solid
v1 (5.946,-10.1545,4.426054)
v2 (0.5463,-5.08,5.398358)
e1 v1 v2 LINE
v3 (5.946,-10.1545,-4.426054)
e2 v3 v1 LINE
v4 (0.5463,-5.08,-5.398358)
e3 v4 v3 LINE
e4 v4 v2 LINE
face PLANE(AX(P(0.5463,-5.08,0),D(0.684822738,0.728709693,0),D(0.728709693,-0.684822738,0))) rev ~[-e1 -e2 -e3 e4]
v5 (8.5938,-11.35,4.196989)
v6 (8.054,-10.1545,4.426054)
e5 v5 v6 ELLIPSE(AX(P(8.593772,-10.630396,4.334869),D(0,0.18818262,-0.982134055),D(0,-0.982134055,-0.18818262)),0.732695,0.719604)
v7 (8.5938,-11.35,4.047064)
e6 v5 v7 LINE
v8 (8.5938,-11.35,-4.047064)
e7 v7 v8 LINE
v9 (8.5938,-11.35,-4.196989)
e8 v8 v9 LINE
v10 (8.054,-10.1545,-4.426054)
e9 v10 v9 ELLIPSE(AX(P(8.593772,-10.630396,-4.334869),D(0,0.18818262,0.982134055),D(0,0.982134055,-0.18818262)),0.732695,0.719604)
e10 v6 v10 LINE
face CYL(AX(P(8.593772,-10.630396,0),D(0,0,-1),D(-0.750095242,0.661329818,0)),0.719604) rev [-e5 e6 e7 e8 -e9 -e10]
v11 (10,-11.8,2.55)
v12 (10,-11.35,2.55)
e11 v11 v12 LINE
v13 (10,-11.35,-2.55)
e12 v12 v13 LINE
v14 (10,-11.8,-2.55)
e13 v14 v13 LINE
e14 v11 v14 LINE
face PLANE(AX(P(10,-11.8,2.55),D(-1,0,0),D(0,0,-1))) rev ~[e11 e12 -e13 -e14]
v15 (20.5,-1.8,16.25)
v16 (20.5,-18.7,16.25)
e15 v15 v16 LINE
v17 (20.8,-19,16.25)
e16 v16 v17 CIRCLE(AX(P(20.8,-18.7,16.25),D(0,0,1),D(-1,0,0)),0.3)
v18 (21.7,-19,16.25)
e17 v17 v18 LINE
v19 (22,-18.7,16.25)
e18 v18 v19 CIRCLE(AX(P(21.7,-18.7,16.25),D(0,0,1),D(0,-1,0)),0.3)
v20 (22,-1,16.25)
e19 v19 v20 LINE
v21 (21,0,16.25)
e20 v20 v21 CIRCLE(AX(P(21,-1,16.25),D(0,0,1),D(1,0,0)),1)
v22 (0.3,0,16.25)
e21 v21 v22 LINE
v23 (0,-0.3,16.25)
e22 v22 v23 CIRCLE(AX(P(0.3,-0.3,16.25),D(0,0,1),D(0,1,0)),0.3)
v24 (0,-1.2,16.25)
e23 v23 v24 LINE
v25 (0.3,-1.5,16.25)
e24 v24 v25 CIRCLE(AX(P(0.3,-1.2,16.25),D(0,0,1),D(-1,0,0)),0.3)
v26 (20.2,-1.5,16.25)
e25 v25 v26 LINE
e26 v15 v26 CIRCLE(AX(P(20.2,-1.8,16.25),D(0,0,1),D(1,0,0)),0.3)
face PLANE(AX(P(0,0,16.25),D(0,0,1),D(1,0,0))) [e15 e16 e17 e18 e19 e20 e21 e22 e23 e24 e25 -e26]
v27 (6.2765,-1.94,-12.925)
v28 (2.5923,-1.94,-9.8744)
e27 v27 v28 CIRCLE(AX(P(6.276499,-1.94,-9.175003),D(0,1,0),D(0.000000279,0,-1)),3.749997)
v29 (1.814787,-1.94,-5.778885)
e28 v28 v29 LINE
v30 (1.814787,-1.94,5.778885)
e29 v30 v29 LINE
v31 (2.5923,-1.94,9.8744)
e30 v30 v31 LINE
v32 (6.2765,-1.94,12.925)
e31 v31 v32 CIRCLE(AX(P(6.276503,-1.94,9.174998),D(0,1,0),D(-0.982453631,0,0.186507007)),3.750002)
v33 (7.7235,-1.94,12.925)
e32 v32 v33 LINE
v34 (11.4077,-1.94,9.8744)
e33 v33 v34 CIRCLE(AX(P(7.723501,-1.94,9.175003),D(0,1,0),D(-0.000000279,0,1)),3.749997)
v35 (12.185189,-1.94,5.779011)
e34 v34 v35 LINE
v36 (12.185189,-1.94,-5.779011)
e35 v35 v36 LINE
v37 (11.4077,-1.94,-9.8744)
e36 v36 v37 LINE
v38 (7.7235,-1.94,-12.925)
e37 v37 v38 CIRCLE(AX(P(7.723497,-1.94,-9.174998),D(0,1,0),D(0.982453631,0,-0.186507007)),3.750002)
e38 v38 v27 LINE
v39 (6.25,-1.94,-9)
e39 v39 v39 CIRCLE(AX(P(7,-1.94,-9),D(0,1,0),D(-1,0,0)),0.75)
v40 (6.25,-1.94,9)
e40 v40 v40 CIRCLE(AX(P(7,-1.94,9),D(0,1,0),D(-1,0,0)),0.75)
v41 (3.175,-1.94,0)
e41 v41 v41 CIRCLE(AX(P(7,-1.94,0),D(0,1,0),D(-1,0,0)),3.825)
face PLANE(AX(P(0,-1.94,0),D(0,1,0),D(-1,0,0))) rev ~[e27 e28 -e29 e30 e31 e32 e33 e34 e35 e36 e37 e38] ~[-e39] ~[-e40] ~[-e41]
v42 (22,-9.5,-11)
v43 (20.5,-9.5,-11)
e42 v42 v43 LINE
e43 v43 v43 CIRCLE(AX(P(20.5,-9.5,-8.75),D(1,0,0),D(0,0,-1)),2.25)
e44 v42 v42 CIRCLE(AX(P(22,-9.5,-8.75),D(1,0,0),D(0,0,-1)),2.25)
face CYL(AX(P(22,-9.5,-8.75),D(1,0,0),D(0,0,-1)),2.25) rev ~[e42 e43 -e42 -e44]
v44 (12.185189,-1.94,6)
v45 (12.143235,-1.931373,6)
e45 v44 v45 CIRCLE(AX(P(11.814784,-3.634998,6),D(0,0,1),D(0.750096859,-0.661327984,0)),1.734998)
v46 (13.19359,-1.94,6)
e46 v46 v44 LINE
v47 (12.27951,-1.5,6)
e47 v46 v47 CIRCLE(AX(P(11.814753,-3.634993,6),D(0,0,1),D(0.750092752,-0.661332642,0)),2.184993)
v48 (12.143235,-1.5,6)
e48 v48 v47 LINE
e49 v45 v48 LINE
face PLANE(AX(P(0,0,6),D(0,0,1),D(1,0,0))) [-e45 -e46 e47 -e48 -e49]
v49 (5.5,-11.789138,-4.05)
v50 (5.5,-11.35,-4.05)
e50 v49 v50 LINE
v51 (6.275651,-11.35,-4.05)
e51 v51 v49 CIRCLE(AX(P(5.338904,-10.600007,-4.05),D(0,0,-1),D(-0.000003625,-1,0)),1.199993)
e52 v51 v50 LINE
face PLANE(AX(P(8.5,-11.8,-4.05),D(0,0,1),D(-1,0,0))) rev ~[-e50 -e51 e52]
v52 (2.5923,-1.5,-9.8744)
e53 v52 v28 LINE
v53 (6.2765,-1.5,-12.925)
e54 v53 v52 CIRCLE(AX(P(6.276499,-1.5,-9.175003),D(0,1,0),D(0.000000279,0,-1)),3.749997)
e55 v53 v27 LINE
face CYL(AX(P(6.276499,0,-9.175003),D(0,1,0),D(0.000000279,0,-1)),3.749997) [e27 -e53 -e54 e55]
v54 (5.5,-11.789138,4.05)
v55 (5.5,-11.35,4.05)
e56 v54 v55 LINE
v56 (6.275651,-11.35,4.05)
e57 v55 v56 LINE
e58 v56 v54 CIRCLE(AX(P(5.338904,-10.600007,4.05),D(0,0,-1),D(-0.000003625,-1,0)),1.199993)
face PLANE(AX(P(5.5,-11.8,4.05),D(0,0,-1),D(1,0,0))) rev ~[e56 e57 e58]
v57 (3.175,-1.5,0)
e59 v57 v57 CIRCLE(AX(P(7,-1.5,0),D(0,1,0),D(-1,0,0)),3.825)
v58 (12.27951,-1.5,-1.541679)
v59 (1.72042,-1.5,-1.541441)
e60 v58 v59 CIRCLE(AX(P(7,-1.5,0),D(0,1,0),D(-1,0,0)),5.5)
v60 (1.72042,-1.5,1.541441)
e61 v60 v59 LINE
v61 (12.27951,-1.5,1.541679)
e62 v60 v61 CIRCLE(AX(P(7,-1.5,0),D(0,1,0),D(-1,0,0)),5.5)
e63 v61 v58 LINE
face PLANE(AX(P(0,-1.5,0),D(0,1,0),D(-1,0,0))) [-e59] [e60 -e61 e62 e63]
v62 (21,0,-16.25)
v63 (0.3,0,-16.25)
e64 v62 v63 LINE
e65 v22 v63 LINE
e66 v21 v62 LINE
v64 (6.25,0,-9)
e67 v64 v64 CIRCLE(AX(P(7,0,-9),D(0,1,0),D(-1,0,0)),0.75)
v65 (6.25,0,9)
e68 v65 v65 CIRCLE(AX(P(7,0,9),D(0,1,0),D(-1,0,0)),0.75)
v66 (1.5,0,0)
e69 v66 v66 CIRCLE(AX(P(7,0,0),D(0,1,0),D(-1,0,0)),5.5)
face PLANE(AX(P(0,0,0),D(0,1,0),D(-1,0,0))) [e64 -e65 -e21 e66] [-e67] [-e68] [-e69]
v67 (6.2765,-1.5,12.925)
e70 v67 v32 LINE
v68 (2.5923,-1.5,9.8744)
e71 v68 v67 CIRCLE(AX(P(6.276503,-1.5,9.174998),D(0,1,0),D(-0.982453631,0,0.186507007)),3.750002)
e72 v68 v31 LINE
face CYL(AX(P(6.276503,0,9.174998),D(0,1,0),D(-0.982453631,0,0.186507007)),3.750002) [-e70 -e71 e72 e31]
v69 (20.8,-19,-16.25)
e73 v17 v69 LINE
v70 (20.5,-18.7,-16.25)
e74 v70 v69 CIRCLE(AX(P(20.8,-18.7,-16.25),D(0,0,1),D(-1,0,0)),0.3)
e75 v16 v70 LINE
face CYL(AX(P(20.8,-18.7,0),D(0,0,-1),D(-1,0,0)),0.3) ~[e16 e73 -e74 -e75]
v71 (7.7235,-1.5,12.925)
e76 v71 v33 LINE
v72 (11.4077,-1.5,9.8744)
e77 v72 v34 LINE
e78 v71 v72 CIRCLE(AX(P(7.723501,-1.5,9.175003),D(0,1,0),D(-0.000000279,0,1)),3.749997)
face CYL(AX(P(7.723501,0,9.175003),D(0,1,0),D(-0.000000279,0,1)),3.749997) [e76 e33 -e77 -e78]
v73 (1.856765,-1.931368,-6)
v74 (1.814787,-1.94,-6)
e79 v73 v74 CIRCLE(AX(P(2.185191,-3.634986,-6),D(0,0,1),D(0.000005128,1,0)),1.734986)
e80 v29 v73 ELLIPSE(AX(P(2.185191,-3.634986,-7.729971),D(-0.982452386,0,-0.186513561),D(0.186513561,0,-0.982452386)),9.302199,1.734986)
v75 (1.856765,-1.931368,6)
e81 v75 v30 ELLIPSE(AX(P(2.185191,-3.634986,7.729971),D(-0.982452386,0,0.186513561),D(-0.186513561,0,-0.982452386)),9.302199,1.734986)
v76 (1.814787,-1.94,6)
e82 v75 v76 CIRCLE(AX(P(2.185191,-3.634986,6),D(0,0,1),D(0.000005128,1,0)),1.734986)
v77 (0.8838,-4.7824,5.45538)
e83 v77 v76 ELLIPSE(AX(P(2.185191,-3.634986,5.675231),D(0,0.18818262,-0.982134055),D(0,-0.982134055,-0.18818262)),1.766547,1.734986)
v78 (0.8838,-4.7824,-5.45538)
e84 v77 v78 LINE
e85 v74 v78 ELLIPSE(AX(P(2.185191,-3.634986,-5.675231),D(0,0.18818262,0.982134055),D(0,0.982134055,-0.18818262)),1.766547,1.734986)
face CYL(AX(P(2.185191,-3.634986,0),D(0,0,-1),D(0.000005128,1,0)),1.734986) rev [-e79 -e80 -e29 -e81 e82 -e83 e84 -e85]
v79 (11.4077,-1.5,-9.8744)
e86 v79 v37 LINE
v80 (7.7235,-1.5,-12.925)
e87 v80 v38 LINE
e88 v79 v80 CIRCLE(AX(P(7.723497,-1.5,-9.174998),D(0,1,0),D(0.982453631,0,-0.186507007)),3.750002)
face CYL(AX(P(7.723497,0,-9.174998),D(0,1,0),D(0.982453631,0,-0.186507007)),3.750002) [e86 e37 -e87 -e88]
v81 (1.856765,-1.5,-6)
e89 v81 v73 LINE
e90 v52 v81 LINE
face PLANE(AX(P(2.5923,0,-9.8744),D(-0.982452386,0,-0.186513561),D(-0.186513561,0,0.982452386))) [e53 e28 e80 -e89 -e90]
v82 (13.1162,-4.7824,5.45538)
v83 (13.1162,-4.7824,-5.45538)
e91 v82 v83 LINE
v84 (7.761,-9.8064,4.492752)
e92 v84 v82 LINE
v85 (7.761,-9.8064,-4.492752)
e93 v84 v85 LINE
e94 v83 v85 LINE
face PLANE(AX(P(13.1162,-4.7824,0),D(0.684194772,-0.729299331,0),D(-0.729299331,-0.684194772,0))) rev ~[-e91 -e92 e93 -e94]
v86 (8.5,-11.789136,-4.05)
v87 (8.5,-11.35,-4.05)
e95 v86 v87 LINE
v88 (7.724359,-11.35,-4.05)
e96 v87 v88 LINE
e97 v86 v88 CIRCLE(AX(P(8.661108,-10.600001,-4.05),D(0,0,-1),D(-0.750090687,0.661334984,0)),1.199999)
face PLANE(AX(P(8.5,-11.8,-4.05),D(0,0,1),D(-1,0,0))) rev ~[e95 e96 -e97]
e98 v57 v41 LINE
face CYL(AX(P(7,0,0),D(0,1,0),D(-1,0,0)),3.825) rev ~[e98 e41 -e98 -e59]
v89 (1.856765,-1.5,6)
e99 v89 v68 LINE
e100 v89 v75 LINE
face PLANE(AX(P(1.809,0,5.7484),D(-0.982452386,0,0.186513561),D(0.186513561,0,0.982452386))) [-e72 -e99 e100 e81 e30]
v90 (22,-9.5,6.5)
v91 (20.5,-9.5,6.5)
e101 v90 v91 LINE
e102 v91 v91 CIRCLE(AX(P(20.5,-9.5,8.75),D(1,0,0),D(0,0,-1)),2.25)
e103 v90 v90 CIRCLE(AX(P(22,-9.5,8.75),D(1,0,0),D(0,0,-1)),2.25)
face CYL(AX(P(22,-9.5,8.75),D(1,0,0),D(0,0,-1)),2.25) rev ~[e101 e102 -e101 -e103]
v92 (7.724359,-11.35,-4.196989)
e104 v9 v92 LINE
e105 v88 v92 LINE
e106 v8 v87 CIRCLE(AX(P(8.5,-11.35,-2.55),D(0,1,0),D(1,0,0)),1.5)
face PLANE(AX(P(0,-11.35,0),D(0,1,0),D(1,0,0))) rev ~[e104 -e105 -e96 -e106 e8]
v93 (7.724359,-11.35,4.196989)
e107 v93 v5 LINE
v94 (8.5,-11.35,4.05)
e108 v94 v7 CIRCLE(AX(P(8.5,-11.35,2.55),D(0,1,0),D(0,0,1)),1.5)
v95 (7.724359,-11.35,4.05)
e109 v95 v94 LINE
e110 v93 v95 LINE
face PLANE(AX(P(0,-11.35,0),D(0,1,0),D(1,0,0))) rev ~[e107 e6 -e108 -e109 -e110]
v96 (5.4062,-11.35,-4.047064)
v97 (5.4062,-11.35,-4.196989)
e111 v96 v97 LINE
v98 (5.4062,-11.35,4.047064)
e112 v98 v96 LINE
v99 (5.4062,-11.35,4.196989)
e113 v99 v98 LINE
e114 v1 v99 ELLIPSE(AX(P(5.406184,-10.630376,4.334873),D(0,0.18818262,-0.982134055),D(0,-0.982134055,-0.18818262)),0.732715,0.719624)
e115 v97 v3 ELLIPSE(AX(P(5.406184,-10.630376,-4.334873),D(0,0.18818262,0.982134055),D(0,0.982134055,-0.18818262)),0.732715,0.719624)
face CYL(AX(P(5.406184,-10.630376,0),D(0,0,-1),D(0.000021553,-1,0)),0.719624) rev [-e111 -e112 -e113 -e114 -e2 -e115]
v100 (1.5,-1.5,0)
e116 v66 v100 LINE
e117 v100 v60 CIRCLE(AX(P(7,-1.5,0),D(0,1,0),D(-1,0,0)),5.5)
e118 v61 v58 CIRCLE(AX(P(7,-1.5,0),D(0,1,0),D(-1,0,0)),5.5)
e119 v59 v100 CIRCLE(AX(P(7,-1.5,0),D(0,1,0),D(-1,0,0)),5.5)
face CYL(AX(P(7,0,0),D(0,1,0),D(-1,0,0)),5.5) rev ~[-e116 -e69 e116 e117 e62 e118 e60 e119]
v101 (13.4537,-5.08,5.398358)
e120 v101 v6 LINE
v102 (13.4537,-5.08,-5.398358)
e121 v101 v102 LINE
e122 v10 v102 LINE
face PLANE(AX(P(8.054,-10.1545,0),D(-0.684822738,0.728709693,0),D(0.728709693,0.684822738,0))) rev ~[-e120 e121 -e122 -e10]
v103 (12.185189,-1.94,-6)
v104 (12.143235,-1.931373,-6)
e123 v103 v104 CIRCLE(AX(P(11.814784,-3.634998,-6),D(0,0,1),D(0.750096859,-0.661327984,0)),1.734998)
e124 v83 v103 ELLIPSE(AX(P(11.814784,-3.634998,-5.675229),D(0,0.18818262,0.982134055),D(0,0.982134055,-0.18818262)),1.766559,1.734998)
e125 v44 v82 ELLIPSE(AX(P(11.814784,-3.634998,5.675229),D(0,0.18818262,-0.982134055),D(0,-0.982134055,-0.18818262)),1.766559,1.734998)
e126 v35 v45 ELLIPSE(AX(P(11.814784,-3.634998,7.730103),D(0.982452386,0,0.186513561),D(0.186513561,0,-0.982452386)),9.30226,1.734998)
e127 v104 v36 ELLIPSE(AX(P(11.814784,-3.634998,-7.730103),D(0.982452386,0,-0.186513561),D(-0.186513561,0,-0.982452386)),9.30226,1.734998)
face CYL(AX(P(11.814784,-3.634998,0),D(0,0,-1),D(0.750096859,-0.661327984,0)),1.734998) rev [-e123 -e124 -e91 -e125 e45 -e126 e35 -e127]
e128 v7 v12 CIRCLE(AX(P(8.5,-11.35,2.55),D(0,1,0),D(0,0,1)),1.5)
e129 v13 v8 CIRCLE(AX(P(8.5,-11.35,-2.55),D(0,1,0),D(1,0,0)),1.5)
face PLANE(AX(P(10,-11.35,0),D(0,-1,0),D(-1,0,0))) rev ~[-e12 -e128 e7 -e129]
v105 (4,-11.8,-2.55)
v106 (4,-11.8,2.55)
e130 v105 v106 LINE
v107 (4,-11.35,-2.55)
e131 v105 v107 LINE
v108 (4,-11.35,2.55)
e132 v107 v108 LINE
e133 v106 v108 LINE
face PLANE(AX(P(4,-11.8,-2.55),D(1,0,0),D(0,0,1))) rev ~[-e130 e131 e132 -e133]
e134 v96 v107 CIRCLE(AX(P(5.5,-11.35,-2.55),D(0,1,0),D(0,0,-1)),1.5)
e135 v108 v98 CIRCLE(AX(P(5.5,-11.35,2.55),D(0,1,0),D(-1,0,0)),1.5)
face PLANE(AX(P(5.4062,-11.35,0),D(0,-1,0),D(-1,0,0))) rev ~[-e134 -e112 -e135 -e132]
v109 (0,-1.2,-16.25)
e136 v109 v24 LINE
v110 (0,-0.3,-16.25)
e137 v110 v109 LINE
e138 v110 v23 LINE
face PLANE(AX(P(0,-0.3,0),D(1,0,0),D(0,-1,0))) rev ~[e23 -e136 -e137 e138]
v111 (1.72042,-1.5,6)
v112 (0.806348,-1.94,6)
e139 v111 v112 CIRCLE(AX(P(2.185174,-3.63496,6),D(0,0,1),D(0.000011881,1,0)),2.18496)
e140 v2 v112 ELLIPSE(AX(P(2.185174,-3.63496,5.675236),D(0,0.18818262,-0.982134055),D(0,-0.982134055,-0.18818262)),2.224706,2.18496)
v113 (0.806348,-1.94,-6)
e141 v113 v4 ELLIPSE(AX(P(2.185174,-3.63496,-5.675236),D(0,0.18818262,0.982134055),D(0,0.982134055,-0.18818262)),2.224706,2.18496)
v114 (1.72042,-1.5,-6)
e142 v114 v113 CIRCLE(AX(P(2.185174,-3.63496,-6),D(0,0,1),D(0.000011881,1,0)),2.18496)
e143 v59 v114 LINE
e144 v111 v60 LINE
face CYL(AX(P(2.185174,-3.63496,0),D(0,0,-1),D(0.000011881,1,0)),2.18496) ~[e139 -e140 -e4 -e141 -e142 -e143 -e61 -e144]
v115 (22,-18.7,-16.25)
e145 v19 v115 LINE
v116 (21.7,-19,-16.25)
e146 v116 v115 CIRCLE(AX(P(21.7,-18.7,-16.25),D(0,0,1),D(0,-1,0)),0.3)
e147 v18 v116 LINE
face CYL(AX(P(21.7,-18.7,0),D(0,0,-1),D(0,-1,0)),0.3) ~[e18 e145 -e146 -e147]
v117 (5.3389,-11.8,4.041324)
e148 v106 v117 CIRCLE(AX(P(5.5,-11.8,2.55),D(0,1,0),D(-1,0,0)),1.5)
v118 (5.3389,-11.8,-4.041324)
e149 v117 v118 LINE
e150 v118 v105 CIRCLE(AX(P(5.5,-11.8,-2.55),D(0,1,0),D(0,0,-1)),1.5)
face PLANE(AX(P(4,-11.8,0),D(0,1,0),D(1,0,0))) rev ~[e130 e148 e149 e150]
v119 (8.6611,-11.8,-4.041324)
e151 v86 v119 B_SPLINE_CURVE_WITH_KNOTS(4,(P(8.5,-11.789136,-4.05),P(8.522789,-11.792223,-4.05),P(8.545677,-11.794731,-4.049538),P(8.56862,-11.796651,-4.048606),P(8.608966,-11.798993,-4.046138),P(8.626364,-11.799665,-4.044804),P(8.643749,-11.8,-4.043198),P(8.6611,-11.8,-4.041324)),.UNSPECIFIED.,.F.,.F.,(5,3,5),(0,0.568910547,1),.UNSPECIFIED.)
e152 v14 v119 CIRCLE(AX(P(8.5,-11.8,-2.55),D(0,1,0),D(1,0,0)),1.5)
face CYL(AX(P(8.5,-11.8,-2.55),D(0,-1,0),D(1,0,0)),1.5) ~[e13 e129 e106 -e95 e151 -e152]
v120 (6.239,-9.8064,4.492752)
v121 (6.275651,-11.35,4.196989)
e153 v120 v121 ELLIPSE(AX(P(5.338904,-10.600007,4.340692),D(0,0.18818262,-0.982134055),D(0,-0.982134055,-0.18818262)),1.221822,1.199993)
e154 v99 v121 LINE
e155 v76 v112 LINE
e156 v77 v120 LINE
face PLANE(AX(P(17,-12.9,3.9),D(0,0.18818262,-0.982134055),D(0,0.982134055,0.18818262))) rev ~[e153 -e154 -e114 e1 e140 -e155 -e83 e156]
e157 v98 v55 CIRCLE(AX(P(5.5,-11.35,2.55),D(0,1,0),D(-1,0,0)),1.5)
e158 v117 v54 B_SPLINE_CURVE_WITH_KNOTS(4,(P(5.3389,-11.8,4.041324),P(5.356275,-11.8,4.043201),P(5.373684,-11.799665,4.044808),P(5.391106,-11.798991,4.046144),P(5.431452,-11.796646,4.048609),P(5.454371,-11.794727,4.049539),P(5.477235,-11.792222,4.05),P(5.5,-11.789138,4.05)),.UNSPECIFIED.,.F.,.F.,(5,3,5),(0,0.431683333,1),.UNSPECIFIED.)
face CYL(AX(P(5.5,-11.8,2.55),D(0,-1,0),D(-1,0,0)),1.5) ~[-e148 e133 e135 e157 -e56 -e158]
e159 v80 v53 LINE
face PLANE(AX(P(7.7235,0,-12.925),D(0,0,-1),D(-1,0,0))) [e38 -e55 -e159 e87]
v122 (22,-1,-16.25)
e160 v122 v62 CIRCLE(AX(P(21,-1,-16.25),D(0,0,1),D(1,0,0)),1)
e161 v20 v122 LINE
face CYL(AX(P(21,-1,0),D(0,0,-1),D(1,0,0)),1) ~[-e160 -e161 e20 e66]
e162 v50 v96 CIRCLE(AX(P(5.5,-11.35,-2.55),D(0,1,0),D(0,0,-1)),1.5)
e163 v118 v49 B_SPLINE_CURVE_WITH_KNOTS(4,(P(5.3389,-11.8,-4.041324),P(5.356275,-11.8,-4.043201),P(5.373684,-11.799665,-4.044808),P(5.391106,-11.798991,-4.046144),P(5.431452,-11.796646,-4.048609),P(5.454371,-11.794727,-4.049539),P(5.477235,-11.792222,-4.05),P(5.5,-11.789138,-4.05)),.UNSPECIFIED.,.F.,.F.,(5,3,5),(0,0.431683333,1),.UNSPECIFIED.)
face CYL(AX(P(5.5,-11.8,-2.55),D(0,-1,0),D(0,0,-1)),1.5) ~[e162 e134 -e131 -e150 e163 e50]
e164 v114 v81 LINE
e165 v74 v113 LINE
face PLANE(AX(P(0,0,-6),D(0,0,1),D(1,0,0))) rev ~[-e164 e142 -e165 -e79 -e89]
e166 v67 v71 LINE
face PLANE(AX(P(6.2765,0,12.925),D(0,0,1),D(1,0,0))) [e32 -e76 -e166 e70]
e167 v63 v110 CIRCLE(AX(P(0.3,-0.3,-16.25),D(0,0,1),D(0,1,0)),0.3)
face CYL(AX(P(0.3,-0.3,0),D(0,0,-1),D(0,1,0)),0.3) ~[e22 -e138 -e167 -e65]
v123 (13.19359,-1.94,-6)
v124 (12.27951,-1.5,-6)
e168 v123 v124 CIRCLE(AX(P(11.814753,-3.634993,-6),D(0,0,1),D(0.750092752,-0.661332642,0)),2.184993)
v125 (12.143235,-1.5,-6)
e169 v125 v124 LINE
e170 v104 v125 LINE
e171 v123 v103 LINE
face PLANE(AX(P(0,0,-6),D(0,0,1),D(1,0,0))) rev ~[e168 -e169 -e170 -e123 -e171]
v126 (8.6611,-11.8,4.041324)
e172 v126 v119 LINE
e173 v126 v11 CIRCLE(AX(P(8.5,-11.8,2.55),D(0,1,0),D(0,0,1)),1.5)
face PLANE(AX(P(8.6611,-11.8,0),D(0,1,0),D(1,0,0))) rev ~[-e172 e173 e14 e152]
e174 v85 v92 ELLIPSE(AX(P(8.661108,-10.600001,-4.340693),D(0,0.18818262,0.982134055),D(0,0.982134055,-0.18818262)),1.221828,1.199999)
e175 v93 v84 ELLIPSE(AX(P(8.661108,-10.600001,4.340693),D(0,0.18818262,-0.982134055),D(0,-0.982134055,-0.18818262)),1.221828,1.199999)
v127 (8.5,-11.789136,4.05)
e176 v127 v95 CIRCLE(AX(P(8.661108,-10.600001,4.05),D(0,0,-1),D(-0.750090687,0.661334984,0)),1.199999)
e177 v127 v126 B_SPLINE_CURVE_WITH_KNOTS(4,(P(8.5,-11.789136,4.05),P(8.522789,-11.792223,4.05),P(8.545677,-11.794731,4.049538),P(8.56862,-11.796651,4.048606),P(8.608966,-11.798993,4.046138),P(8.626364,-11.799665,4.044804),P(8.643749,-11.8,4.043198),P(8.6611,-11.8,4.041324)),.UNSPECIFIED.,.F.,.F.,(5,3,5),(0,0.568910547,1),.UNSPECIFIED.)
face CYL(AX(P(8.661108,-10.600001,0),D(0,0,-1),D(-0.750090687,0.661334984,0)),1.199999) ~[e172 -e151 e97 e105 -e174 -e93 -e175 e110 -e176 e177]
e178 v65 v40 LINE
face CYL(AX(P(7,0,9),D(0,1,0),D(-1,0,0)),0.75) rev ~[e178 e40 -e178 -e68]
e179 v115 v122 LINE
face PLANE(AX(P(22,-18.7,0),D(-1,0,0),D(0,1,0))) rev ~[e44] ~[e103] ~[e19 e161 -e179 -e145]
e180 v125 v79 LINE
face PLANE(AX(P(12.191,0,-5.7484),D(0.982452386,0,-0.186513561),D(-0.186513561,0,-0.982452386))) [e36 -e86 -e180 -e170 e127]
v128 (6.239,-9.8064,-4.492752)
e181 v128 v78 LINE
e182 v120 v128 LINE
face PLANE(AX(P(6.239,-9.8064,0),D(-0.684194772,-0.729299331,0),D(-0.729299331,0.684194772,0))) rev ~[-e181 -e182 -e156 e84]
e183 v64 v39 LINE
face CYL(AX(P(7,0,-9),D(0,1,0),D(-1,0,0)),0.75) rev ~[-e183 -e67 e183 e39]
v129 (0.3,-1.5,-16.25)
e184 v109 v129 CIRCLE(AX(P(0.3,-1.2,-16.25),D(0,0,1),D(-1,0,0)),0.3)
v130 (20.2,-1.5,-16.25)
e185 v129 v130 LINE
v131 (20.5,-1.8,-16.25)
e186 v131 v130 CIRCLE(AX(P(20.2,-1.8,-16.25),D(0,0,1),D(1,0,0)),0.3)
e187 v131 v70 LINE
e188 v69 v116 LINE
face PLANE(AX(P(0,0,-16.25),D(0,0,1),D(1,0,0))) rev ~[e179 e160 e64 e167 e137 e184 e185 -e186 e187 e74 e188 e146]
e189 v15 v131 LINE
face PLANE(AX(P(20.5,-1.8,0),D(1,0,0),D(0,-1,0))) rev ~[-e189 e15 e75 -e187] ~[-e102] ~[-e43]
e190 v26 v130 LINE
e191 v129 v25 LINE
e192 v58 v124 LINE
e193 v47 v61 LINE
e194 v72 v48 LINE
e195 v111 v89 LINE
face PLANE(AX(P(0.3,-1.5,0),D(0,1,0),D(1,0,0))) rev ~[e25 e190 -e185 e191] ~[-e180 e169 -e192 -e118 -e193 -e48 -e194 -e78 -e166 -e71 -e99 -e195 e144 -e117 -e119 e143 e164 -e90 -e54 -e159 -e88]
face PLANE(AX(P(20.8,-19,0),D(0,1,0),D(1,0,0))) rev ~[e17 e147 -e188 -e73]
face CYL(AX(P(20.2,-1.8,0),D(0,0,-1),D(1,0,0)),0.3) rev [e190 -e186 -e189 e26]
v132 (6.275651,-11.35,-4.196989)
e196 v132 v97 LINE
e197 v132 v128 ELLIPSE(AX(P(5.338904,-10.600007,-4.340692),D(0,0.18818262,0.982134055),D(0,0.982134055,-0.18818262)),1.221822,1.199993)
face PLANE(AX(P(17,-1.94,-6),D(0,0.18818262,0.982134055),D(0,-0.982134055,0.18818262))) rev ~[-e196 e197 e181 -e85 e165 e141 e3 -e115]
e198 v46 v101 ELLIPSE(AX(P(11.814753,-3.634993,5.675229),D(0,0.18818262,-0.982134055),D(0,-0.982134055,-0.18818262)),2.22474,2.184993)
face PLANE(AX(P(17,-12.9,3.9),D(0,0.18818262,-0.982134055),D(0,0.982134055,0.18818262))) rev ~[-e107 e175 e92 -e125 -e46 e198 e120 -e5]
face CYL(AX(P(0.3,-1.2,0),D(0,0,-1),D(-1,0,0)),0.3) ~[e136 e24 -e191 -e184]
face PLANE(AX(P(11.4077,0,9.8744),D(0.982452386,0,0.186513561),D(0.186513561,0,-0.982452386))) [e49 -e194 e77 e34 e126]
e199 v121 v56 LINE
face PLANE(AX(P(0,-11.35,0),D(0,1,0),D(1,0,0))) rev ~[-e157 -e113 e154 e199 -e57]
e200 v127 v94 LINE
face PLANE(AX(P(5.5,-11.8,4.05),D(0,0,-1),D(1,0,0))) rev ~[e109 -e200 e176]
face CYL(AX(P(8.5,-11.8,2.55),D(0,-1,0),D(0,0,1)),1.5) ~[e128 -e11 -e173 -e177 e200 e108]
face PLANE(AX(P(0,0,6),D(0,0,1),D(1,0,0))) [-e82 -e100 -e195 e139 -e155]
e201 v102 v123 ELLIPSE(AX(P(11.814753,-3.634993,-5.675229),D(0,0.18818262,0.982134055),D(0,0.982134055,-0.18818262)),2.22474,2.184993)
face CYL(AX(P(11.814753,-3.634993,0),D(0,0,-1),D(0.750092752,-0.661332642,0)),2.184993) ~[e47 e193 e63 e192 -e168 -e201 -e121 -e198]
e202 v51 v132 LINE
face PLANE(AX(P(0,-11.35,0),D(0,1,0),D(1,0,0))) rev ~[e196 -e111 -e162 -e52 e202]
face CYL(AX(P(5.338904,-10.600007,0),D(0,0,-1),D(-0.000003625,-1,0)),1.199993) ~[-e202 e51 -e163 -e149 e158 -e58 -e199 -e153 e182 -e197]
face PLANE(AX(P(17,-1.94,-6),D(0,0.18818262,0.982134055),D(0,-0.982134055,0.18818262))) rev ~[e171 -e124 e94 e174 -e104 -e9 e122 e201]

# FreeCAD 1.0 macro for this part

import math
import FreeCAD as App
import Part
import Sketcher

V = App.Vector
Q = App.Units.Quantity

doc = App.newDocument("Part")
body = doc.addObject("PartDesign::Body", "Body")

# Sketch on XY plane
sketch1 = body.newObject("Sketcher::SketchObject", "Sketch")
sketch1.AttachmentSupport = (doc.getObject("XY_Plane"), [""])
sketch1.MapMode = "FlatFace"
sketch1.addGeometry(Part.ArcOfCircle(Part.Circle(V(0.3, -0.3, 0), V(0, 0, 1), 0.3), math.radians(90), math.radians(180)), False)
sketch1.addGeometry(Part.LineSegment(V(0, -0.3, 0), V(0, -1.2, 0)), False)
sketch1.addGeometry(Part.ArcOfCircle(Part.Circle(V(0.3, -1.2, 0), V(0, 0, 1), 0.3), math.radians(180), math.radians(270)), False)
sketch1.addGeometry(Part.LineSegment(V(0.3, -1.5, 0), V(20.2, -1.5, 0)), False)
sketch1.addGeometry(Part.ArcOfCircle(Part.Circle(V(20.2, -1.8, 0), V(0, 0, 1), 0.3), math.radians(0), math.radians(90)), False)
sketch1.addGeometry(Part.LineSegment(V(20.5, -1.8, 0), V(20.5, -18.7, 0)), False)
sketch1.addGeometry(Part.ArcOfCircle(Part.Circle(V(20.8, -18.7, 0), V(0, 0, 1), 0.3), math.radians(180), math.radians(270)), False)
sketch1.addGeometry(Part.LineSegment(V(20.8, -19, 0), V(21.7, -19, 0)), False)
sketch1.addGeometry(Part.ArcOfCircle(Part.Circle(V(21.7, -18.7, 0), V(0, 0, 1), 0.3), math.radians(-90), math.radians(0)), False)
sketch1.addGeometry(Part.LineSegment(V(22, -18.7, 0), V(22, -1, 0)), False)
sketch1.addGeometry(Part.ArcOfCircle(Part.Circle(V(21, -1, 0), V(0, 0, 1), 1), math.radians(0), math.radians(90)), False)
sketch1.addGeometry(Part.LineSegment(V(21, 0, 0), V(0.3, 0, 0)), False)
sketch1.addConstraint(Sketcher.Constraint("Tangent", 0, 2, 1, 1))
sketch1.addConstraint(Sketcher.Constraint("Tangent", 1, 2, 2, 1))
sketch1.addConstraint(Sketcher.Constraint("Tangent", 2, 2, 3, 1))
sketch1.addConstraint(Sketcher.Constraint("Tangent", 3, 2, 4, 2))
sketch1.addConstraint(Sketcher.Constraint("Tangent", 4, 1, 5, 1))
sketch1.addConstraint(Sketcher.Constraint("Tangent", 5, 2, 6, 1))
sketch1.addConstraint(Sketcher.Constraint("Tangent", 6, 2, 7, 1))
sketch1.addConstraint(Sketcher.Constraint("Tangent", 7, 2, 8, 1))
sketch1.addConstraint(Sketcher.Constraint("Tangent", 8, 2, 9, 1))
sketch1.addConstraint(Sketcher.Constraint("Tangent", 9, 2, 10, 1))
sketch1.addConstraint(Sketcher.Constraint("Tangent", 10, 2, 11, 1))
sketch1.addConstraint(Sketcher.Constraint("Tangent", 11, 2, 0, 1))
sketch1.addConstraint(Sketcher.Constraint("Vertical", 1))
sketch1.addConstraint(Sketcher.Constraint("Horizontal", 3))
sketch1.addConstraint(Sketcher.Constraint("Vertical", 5))
sketch1.addConstraint(Sketcher.Constraint("Horizontal", 7))
sketch1.addConstraint(Sketcher.Constraint("Vertical", 9))
sketch1.addConstraint(Sketcher.Constraint("Horizontal", 11))
sketch1.addConstraint(Sketcher.Constraint("Equal", 0, 2))
sketch1.addConstraint(Sketcher.Constraint("Equal", 2, 4))
sketch1.addConstraint(Sketcher.Constraint("Equal", 4, 6))
sketch1.addConstraint(Sketcher.Constraint("Equal", 6, 8))
sketch1.addConstraint(Sketcher.Constraint("PointOnObject", 0, 2, -2))
sketch1.addConstraint(Sketcher.Constraint("PointOnObject", 10, 2, -1))
sketch1.addConstraint(Sketcher.Constraint("Equal", 7, 1))
sketch1.addConstraint(Sketcher.Constraint("Radius", 10, 1.0))
sketch1.addConstraint(Sketcher.Constraint("Radius", 0, 0.3))
sketch1.addConstraint(Sketcher.Constraint("DistanceX", 3, 1, 3, 2, 19.9))
sketch1.addConstraint(Sketcher.Constraint("DistanceX", 7, 1, 7, 2, 0.9))
sketch1.addConstraint(Sketcher.Constraint("DistanceY", 5, 2, 5, 1, 16.9))
pad1 = body.newObject("PartDesign::Pad", "Pad")
pad1.Profile = sketch1
pad1.Length = 32.5
pad1.Midplane = True

# Sketch on YZ plane
sketch2 = body.newObject("Sketcher::SketchObject", "Sketch001")
sketch2.AttachmentSupport = (doc.getObject("YZ_Plane"), [""])
sketch2.MapMode = "FlatFace"
sketch2.AttachmentOffset = App.Placement(V(0, 0, 22), App.Rotation())
sketch2.addGeometry(Part.Circle(V(-9.5, -8.8, 0), V(0, 0, 1), 2.2), False)
sketch2.addConstraint(Sketcher.Constraint("Diameter", 0, 4.5))
sketch2.addConstraint(Sketcher.Constraint("DistanceX", 0, 3, -1, 1, 9.5))
sketch2.addConstraint(Sketcher.Constraint("DistanceY", 0, 3, -1, 1, 8.75))
pocket1 = body.newObject("PartDesign::Pocket", "Pocket")
pocket1.Profile = sketch2
pocket1.Length = 3
pocket1.Midplane = True

# Sketch on YZ plane
sketch3 = body.newObject("Sketcher::SketchObject", "Sketch002")
sketch3.AttachmentSupport = (doc.getObject("YZ_Plane"), [""])
sketch3.MapMode = "FlatFace"
sketch3.AttachmentOffset = App.Placement(V(0, 0, 22), App.Rotation())
sketch3.addGeometry(Part.Circle(V(-9.5, 8.8, 0), V(0, 0, 1), 2.2), False)
sketch3.addConstraint(Sketcher.Constraint("Diameter", 0, 4.5))
sketch3.addConstraint(Sketcher.Constraint("DistanceX", 0, 3, -1, 1, 9.5))
sketch3.addConstraint(Sketcher.Constraint("DistanceY", -1, 1, 0, 3, 8.75))
pocket2 = body.newObject("PartDesign::Pocket", "Pocket001")
pocket2.Profile = sketch3
pocket2.Length = 3
pocket2.Midplane = True

# Sketch on XY plane
sketch4 = body.newObject("Sketcher::SketchObject", "Sketch003")
sketch4.AttachmentSupport = (doc.getObject("XY_Plane"), [""])
sketch4.MapMode = "FlatFace"
sketch4.addGeometry(Part.LineSegment(V(11.81, -1.45, 0), V(2.19, -1.45, 0)), False)
sketch4.addGeometry(Part.ArcOfCircle(Part.Circle(V(2.19, -3.63, 0), V(0, 0, 1), 2.18), math.radians(90), math.radians(221)), False)
sketch4.addGeometry(Part.LineSegment(V(0.55, -5.08, 0), V(5.95, -10.15, 0)), False)
sketch4.addGeometry(Part.ArcOfCircle(Part.Circle(V(5.41, -10.63, 0), V(0, 0, 1), 0.72), math.radians(-90), math.radians(41)), False)
sketch4.addGeometry(Part.LineSegment(V(5.41, -11.35, 0), V(4, -11.35, 0)), False)
sketch4.addGeometry(Part.LineSegment(V(4, -11.35, 0), V(4, -11.8, 0)), False)
sketch4.addGeometry(Part.LineSegment(V(4, -11.8, 0), V(5.34, -11.8, 0)), False)
sketch4.addGeometry(Part.ArcOfCircle(Part.Circle(V(5.34, -10.6, 0), V(0, 0, 1), 1.2), math.radians(-90), math.radians(41)), False)
sketch4.addGeometry(Part.LineSegment(V(6.24, -9.81, 0), V(0.88, -4.78, 0)), False)
sketch4.addGeometry(Part.ArcOfCircle(Part.Circle(V(2.19, -3.63, 0), V(0, 0, 1), 1.73), math.radians(90), math.radians(221)), False)
sketch4.addGeometry(Part.LineSegment(V(2.19, -1.9, 0), V(11.81, -1.9, 0)), False)
sketch4.addGeometry(Part.ArcOfCircle(Part.Circle(V(11.81, -3.63, 0), V(0, 0, 1), 1.73), math.radians(-41), math.radians(90)), False)
sketch4.addGeometry(Part.LineSegment(V(13.12, -4.78, 0), V(7.76, -9.81, 0)), False)
sketch4.addGeometry(Part.ArcOfCircle(Part.Circle(V(8.66, -10.6, 0), V(0, 0, 1), 1.2), math.radians(139), math.radians(270)), False)
sketch4.addGeometry(Part.LineSegment(V(8.66, -11.8, 0), V(10, -11.8, 0)), False)
sketch4.addGeometry(Part.LineSegment(V(10, -11.8, 0), V(10, -11.35, 0)), False)
sketch4.addGeometry(Part.LineSegment(V(10, -11.35, 0), V(8.59, -11.35, 0)), False)
sketch4.addGeometry(Part.ArcOfCircle(Part.Circle(V(8.59, -10.63, 0), V(0, 0, 1), 0.72), math.radians(139), math.radians(270)), False)
sketch4.addGeometry(Part.LineSegment(V(8.05, -10.15, 0), V(13.45, -5.08, 0)), False)
sketch4.addGeometry(Part.ArcOfCircle(Part.Circle(V(11.81, -3.63, 0), V(0, 0, 1), 2.18), math.radians(-41), math.radians(90)), False)
sketch4.addConstraint(Sketcher.Constraint("Tangent", 0, 2, 1, 1))
sketch4.addConstraint(Sketcher.Constraint("Coincident", 1, 2, 2, 1))
sketch4.addConstraint(Sketcher.Constraint("Coincident", 2, 2, 3, 2))
sketch4.addConstraint(Sketcher.Constraint("Tangent", 3, 1, 4, 1))
sketch4.addConstraint(Sketcher.Constraint("Coincident", 4, 2, 5, 1))
sketch4.addConstraint(Sketcher.Constraint("Coincident", 5, 2, 6, 1))
sketch4.addConstraint(Sketcher.Constraint("Tangent", 6, 2, 7, 1))
sketch4.addConstraint(Sketcher.Constraint("Coincident", 7, 2, 8, 1))
sketch4.addConstraint(Sketcher.Constraint("Coincident", 8, 2, 9, 2))
sketch4.addConstraint(Sketcher.Constraint("Tangent", 9, 1, 10, 1))
sketch4.addConstraint(Sketcher.Constraint("Tangent", 10, 2, 11, 2))
sketch4.addConstraint(Sketcher.Constraint("Coincident", 11, 1, 12, 1))
sketch4.addConstraint(Sketcher.Constraint("Coincident", 12, 2, 13, 1))
sketch4.addConstraint(Sketcher.Constraint("Tangent", 13, 2, 14, 1))
sketch4.addConstraint(Sketcher.Constraint("Coincident", 14, 2, 15, 1))
sketch4.addConstraint(Sketcher.Constraint("Coincident", 15, 2, 16, 1))
sketch4.addConstraint(Sketcher.Constraint("Tangent", 16, 2, 17, 2))
sketch4.addConstraint(Sketcher.Constraint("Coincident", 17, 1, 18, 1))
sketch4.addConstraint(Sketcher.Constraint("Coincident", 18, 2, 19, 1))
sketch4.addConstraint(Sketcher.Constraint("Tangent", 19, 2, 0, 1))
sketch4.addConstraint(Sketcher.Constraint("Horizontal", 0))
sketch4.addConstraint(Sketcher.Constraint("Horizontal", 4))
sketch4.addConstraint(Sketcher.Constraint("Vertical", 5))
sketch4.addConstraint(Sketcher.Constraint("Horizontal", 6))
sketch4.addConstraint(Sketcher.Constraint("Horizontal", 10))
sketch4.addConstraint(Sketcher.Constraint("Horizontal", 14))
sketch4.addConstraint(Sketcher.Constraint("Vertical", 15))
sketch4.addConstraint(Sketcher.Constraint("Horizontal", 16))
sketch4.addConstraint(Sketcher.Constraint("Coincident", 9, 3, 1, 3))
sketch4.addConstraint(Sketcher.Constraint("Coincident", 19, 3, 11, 3))
sketch4.addConstraint(Sketcher.Constraint("Equal", 9, 11))
sketch4.addConstraint(Sketcher.Constraint("Equal", 7, 13))
sketch4.addConstraint(Sketcher.Constraint("Equal", 3, 17))
sketch4.addConstraint(Sketcher.Constraint("Horizontal", 7, 3, 13, 3))
sketch4.addConstraint(Sketcher.Constraint("Horizontal", 3, 3, 17, 3))
sketch4.addConstraint(Sketcher.Constraint("Horizontal", 8, 2, 11, 1))
sketch4.addConstraint(Sketcher.Constraint("Horizontal", 7, 2, 12, 2))
sketch4.addConstraint(Sketcher.Constraint("Horizontal", 2, 2, 17, 1))
sketch4.addConstraint(Sketcher.Constraint("Horizontal", 1, 2, 18, 2))
sketch4.addConstraint(Sketcher.Constraint("Equal", 6, 14))
sketch4.addConstraint(Sketcher.Constraint("Equal", 4, 16))
sketch4.addConstraint(Sketcher.Constraint("Equal", 8, 12))
sketch4.addConstraint(Sketcher.Constraint("Radius", 7, 1.2))
sketch4.addConstraint(Sketcher.Constraint("DistanceX", -1, 1, 4, 2, 4.0))
sketch4.addConstraint(Sketcher.Constraint("DistanceX", -1, 1, 14, 2, 10.0))
sketch4.addConstraint(Sketcher.Constraint("Radius", 1, 2.185))
sketch4.addConstraint(Sketcher.Constraint("Radius", 9, 1.735))
sketch4.addConstraint(Sketcher.Constraint("DistanceY", 5, 2, 5, 1, 0.45))
sketch4.addConstraint(Sketcher.Constraint("DistanceY", 7, 3, -1, 1, 10.6))
sketch4.addConstraint(Sketcher.Constraint("DistanceY", 9, 1, -1, 1, 1.9))
sketch4.addConstraint(Sketcher.Constraint("Radius", 3, 0.7196))
sketch4.addConstraint(Sketcher.Constraint("DistanceX", 7, 3, 7, 2, 0.9))
sketch4.addConstraint(Sketcher.Constraint("Distance", 2, 7.41))
sketch4.addConstraint(Sketcher.Constraint("DistanceX", 6, 1, 6, 2, 1.339))
sketch4.addConstraint(Sketcher.Constraint("DistanceY", 1, 2, -1, 1, 5.08))
sketch4.addConstraint(Sketcher.Constraint("DistanceX", 1, 2, 3, 3, 4.86))
sketch4.addConstraint(Sketcher.Constraint("Distance", 8, 7.343))
sketch4.addConstraint(Sketcher.Constraint("DistanceX", 0, 2, 0, 1, 9.6296))
pad2 = body.newObject("PartDesign::Pad", "Pad001")
pad2.Profile = sketch4
pad2.Length = 12
pad2.Midplane = True

# Sketch on XZ plane
sketch5 = body.newObject("Sketcher::SketchObject", "Sketch004")
sketch5.AttachmentSupport = (doc.getObject("XZ_Plane"), [""])
sketch5.MapMode = "FlatFace"
sketch5.addGeometry(Part.LineSegment(V(1.8, -5.7, 0), V(1.8, 5.7, 0)), False)
sketch5.addGeometry(Part.LineSegment(V(1.8, 5.7, 0), V(2.6, 9.9, 0)), False)
sketch5.addGeometry(Part.ArcOfCircle(Part.Circle(V(6.3, 9.2, 0), V(0, 0, 1), 3.7), math.radians(90), math.radians(169)), False)
sketch5.addGeometry(Part.LineSegment(V(6.3, 12.9, 0), V(7.7, 12.9, 0)), False)
sketch5.addGeometry(Part.ArcOfCircle(Part.Circle(V(7.7, 9.2, 0), V(0, 0, 1), 3.8), math.radians(11), math.radians(90)), False)
sketch5.addGeometry(Part.LineSegment(V(11.4, 9.9, 0), V(12.2, 5.7, 0)), False)
sketch5.addGeometry(Part.LineSegment(V(12.2, 5.7, 0), V(12.2, -5.7, 0)), False)
sketch5.addGeometry(Part.LineSegment(V(12.2, -5.7, 0), V(11.4, -9.9, 0)), False)
sketch5.addGeometry(Part.ArcOfCircle(Part.Circle(V(7.7, -9.2, 0), V(0, 0, 1), 3.7), math.radians(-90), math.radians(-11)), False)
sketch5.addGeometry(Part.LineSegment(V(7.7, -12.9, 0), V(6.3, -12.9, 0)), False)
sketch5.addGeometry(Part.ArcOfCircle(Part.Circle(V(6.3, -9.2, 0), V(0, 0, 1), 3.8), math.radians(-169), math.radians(-90)), False)
sketch5.addGeometry(Part.LineSegment(V(2.6, -9.9, 0), V(1.8, -5.7, 0)), False)
sketch5.addConstraint(Sketcher.Constraint("Coincident", 0, 2, 1, 1))
sketch5.addConstraint(Sketcher.Constraint("Tangent", 1, 2, 2, 2))
sketch5.addConstraint(Sketcher.Constraint("Tangent", 2, 1, 3, 1))
sketch5.addConstraint(Sketcher.Constraint("Tangent", 3, 2, 4, 2))
sketch5.addConstraint(Sketcher.Constraint("Tangent", 4, 1, 5, 1))
sketch5.addConstraint(Sketcher.Constraint("Coincident", 5, 2, 6, 1))
sketch5.addConstraint(Sketcher.Constraint("Coincident", 6, 2, 7, 1))
sketch5.addConstraint(Sketcher.Constraint("Tangent", 7, 2, 8, 2))
sketch5.addConstraint(Sketcher.Constraint("Tangent", 8, 1, 9, 1))
sketch5.addConstraint(Sketcher.Constraint("Tangent", 9, 2, 10, 2))
sketch5.addConstraint(Sketcher.Constraint("Tangent", 10, 1, 11, 1))
sketch5.addConstraint(Sketcher.Constraint("Coincident", 11, 2, 0, 1))
sketch5.addConstraint(Sketcher.Constraint("Vertical", 0))
sketch5.addConstraint(Sketcher.Constraint("Horizontal", 3))
sketch5.addConstraint(Sketcher.Constraint("Vertical", 6))
sketch5.addConstraint(Sketcher.Constraint("Horizontal", 9))
sketch5.addConstraint(Sketcher.Constraint("Equal", 2, 4))
sketch5.addConstraint(Sketcher.Constraint("Equal", 4, 8))
sketch5.addConstraint(Sketcher.Constraint("Equal", 8, 10))
sketch5.addConstraint(Sketcher.Constraint("Symmetric", 4, 3, 8, 3, -1))
sketch5.addConstraint(Sketcher.Constraint("Symmetric", 1, 2, 10, 1, -1))
sketch5.addConstraint(Sketcher.Constraint("Parallel", 1, 7))
sketch5.addConstraint(Sketcher.Constraint("Parallel", 5, 11))
sketch5.addConstraint(Sketcher.Constraint("Horizontal", 0, 2, 5, 2))
sketch5.addConstraint(Sketcher.Constraint("Radius", 2, 3.75))
sketch5.addConstraint(Sketcher.Constraint("Angle", 1, Q("79.2506 deg")))
sketch5.addConstraint(Sketcher.Constraint("DistanceY", 10, 3, 2, 1, 22.1))
sketch5.addConstraint(Sketcher.Constraint("DistanceX", 3, 1, 3, 2, 1.447))
sketch5.addConstraint(Sketcher.Constraint("DistanceY", 0, 1, 0, 2, 11.4968))
sketch5.addConstraint(Sketcher.Constraint("DistanceX", -1, 1, 0, 2, 1.809))
pad3 = body.newObject("PartDesign::Pad", "Pad002")
pad3.Profile = sketch5
pad3.Length = 1.94

# Sketch on XZ plane
sketch6 = body.newObject("Sketcher::SketchObject", "Sketch005")
sketch6.AttachmentSupport = (doc.getObject("XZ_Plane"), [""])
sketch6.MapMode = "FlatFace"
sketch6.addGeometry(Part.Circle(V(7, 0, 0), V(0, 0, 1), 6), False)
sketch6.addConstraint(Sketcher.Constraint("PointOnObject", 0, 3, -1))
sketch6.addConstraint(Sketcher.Constraint("Diameter", 0, 11.0))
sketch6.addConstraint(Sketcher.Constraint("DistanceX", -1, 1, 0, 3, 7.0))
pocket3 = body.newObject("PartDesign::Pocket", "Pocket002")
pocket3.Profile = sketch6
pocket3.Length = 1.5
pocket3.Reversed = True

# Sketch on XZ plane
sketch7 = body.newObject("Sketcher::SketchObject", "Sketch006")
sketch7.AttachmentSupport = (doc.getObject("XZ_Plane"), [""])
sketch7.MapMode = "FlatFace"
sketch7.addGeometry(Part.Circle(V(7, 0, 0), V(0, 0, 1), 3.8), False)
sketch7.addConstraint(Sketcher.Constraint("PointOnObject", 0, 3, -1))
sketch7.addConstraint(Sketcher.Constraint("Diameter", 0, 7.65))
sketch7.addConstraint(Sketcher.Constraint("DistanceX", -1, 1, 0, 3, 7.0))
pocket4 = body.newObject("PartDesign::Pocket", "Pocket003")
pocket4.Profile = sketch7
pocket4.Length = 2.6
pocket4.Reversed = True

# Sketch on YZ plane
sketch8 = body.newObject("Sketcher::SketchObject", "Sketch007")
sketch8.AttachmentSupport = (doc.getObject("YZ_Plane"), [""])
sketch8.MapMode = "FlatFace"
sketch8.AttachmentOffset = App.Placement(V(0, 0, 17), App.Rotation())
sketch8.addGeometry(Part.LineSegment(V(-12.9, 3.9, 0), V(-1.9, 6, 0)), False)
sketch8.addGeometry(Part.LineSegment(V(-1.9, 6, 0), V(-12.9, 6, 0)), False)
sketch8.addGeometry(Part.LineSegment(V(-12.9, 6, 0), V(-12.9, 3.9, 0)), False)
sketch8.addConstraint(Sketcher.Constraint("Coincident", 0, 2, 1, 1))
sketch8.addConstraint(Sketcher.Constraint("Coincident", 1, 2, 2, 1))
sketch8.addConstraint(Sketcher.Constraint("Coincident", 2, 2, 0, 1))
sketch8.addConstraint(Sketcher.Constraint("Horizontal", 1))
sketch8.addConstraint(Sketcher.Constraint("Vertical", 2))
sketch8.addConstraint(Sketcher.Constraint("DistanceY", 2, 2, 2, 1, 2.1))
sketch8.addConstraint(Sketcher.Constraint("DistanceY", -1, 1, 0, 2, 6.0))
sketch8.addConstraint(Sketcher.Constraint("DistanceX", 1, 2, 1, 1, 10.96))
sketch8.addConstraint(Sketcher.Constraint("DistanceX", 1, 2, -1, 1, 12.9))
pocket5 = body.newObject("PartDesign::Pocket", "Pocket004")
pocket5.Profile = sketch8
pocket5.Length = 30

# Sketch on YZ plane
sketch9 = body.newObject("Sketcher::SketchObject", "Sketch008")
sketch9.AttachmentSupport = (doc.getObject("YZ_Plane"), [""])
sketch9.MapMode = "FlatFace"
sketch9.AttachmentOffset = App.Placement(V(0, 0, 17), App.Rotation())
sketch9.addGeometry(Part.LineSegment(V(-1.9, -6, 0), V(-12.9, -3.9, 0)), False)
sketch9.addGeometry(Part.LineSegment(V(-12.9, -3.9, 0), V(-12.9, -6, 0)), False)
sketch9.addGeometry(Part.LineSegment(V(-12.9, -6, 0), V(-1.9, -6, 0)), False)
sketch9.addConstraint(Sketcher.Constraint("Coincident", 0, 2, 1, 1))
sketch9.addConstraint(Sketcher.Constraint("Coincident", 1, 2, 2, 1))
sketch9.addConstraint(Sketcher.Constraint("Coincident", 2, 2, 0, 1))
sketch9.addConstraint(Sketcher.Constraint("Vertical", 1))
sketch9.addConstraint(Sketcher.Constraint("Horizontal", 2))
sketch9.addConstraint(Sketcher.Constraint("DistanceY", 1, 2, 1, 1, 2.1))
sketch9.addConstraint(Sketcher.Constraint("DistanceY", 1, 2, -1, 1, 6.0))
sketch9.addConstraint(Sketcher.Constraint("DistanceX", 2, 1, 2, 2, 10.96))
sketch9.addConstraint(Sketcher.Constraint("DistanceX", 0, 2, -1, 1, 12.9))
pocket6 = body.newObject("PartDesign::Pocket", "Pocket005")
pocket6.Profile = sketch9
pocket6.Length = 30

# Sketch on XZ plane
sketch10 = body.newObject("Sketcher::SketchObject", "Sketch009")
sketch10.AttachmentSupport = (doc.getObject("XZ_Plane"), [""])
sketch10.MapMode = "FlatFace"
sketch10.addGeometry(Part.Circle(V(7, 9, 0), V(0, 0, 1), 0.8), False)
sketch10.addConstraint(Sketcher.Constraint("Diameter", 0, 1.5))
sketch10.addConstraint(Sketcher.Constraint("DistanceX", -1, 1, 0, 3, 7.0))
sketch10.addConstraint(Sketcher.Constraint("DistanceY", -1, 1, 0, 3, 9.0))
pocket7 = body.newObject("PartDesign::Pocket", "Pocket006")
pocket7.Profile = sketch10
pocket7.Length = 3
pocket7.Reversed = True

# Sketch on XZ plane
sketch11 = body.newObject("Sketcher::SketchObject", "Sketch010")
sketch11.AttachmentSupport = (doc.getObject("XZ_Plane"), [""])
sketch11.MapMode = "FlatFace"
sketch11.addGeometry(Part.Circle(V(7, -9, 0), V(0, 0, 1), 0.8), False)
sketch11.addConstraint(Sketcher.Constraint("Diameter", 0, 1.5))
sketch11.addConstraint(Sketcher.Constraint("DistanceX", -1, 1, 0, 3, 7.0))
sketch11.addConstraint(Sketcher.Constraint("DistanceY", 0, 3, -1, 1, 9.0))
pocket8 = body.newObject("PartDesign::Pocket", "Pocket007")
pocket8.Profile = sketch11
pocket8.Length = 3
pocket8.Reversed = True

# Sketch on XZ plane
sketch12 = body.newObject("Sketcher::SketchObject", "Sketch011")
sketch12.AttachmentSupport = (doc.getObject("XZ_Plane"), [""])
sketch12.MapMode = "FlatFace"
sketch12.AttachmentOffset = App.Placement(V(0, 0, 11.8), App.Rotation())
sketch12.addGeometry(Part.LineSegment(V(3, -5, 0), V(3, 5, 0)), False)
sketch12.addGeometry(Part.LineSegment(V(3, 5, 0), V(11, 5, 0)), False)
sketch12.addGeometry(Part.LineSegment(V(11, 5, 0), V(11, -5, 0)), False)
sketch12.addGeometry(Part.LineSegment(V(11, -5, 0), V(3, -5, 0)), False)
sketch12.addGeometry(Part.ArcOfCircle(Part.Circle(V(5.5, 2.5, 0), V(0, 0, 1), 1.5), math.radians(90), math.radians(180)), False)
sketch12.addGeometry(Part.LineSegment(V(4, 2.5, 0), V(4, -2.5, 0)), False)
sketch12.addGeometry(Part.ArcOfCircle(Part.Circle(V(5.5, -2.5, 0), V(0, 0, 1), 1.5), math.radians(180), math.radians(270)), False)
sketch12.addGeometry(Part.LineSegment(V(5.5, -4, 0), V(8.5, -4, 0)), False)
sketch12.addGeometry(Part.ArcOfCircle(Part.Circle(V(8.5, -2.5, 0), V(0, 0, 1), 1.5), math.radians(-90), math.radians(0)), False)
sketch12.addGeometry(Part.LineSegment(V(10, -2.5, 0), V(10, 2.5, 0)), False)
sketch12.addGeometry(Part.ArcOfCircle(Part.Circle(V(8.5, 2.5, 0), V(0, 0, 1), 1.5), math.radians(0), math.radians(90)), False)
sketch12.addGeometry(Part.LineSegment(V(8.5, 4, 0), V(5.5, 4, 0)), False)
sketch12.addConstraint(Sketcher.Constraint("Coincident", 0, 2, 1, 1))
sketch12.addConstraint(Sketcher.Constraint("Coincident", 1, 2, 2, 1))
sketch12.addConstraint(Sketcher.Constraint("Coincident", 2, 2, 3, 1))
sketch12.addConstraint(Sketcher.Constraint("Coincident", 3, 2, 0, 1))
sketch12.addConstraint(Sketcher.Constraint("Tangent", 4, 2, 5, 1))
sketch12.addConstraint(Sketcher.Constraint("Tangent", 5, 2, 6, 1))
sketch12.addConstraint(Sketcher.Constraint("Tangent", 6, 2, 7, 1))
sketch12.addConstraint(Sketcher.Constraint("Tangent", 7, 2, 8, 1))
sketch12.addConstraint(Sketcher.Constraint("Tangent", 8, 2, 9, 1))
sketch12.addConstraint(Sketcher.Constraint("Tangent", 9, 2, 10, 1))
sketch12.addConstraint(Sketcher.Constraint("Tangent", 10, 2, 11, 1))
sketch12.addConstraint(Sketcher.Constraint("Tangent", 11, 2, 4, 1))
sketch12.addConstraint(Sketcher.Constraint("Vertical", 0))
sketch12.addConstraint(Sketcher.Constraint("Horizontal", 1))
sketch12.addConstraint(Sketcher.Constraint("Vertical", 2))
sketch12.addConstraint(Sketcher.Constraint("Horizontal", 3))
sketch12.addConstraint(Sketcher.Constraint("Vertical", 5))
sketch12.addConstraint(Sketcher.Constraint("Horizontal", 7))
sketch12.addConstraint(Sketcher.Constraint("Vertical", 9))
sketch12.addConstraint(Sketcher.Constraint("Horizontal", 11))
sketch12.addConstraint(Sketcher.Constraint("Equal", 4, 6))
sketch12.addConstraint(Sketcher.Constraint("Equal", 6, 8))
sketch12.addConstraint(Sketcher.Constraint("Equal", 8, 10))
sketch12.addConstraint(Sketcher.Constraint("Radius", 4, 1.5))
sketch12.addConstraint(Sketcher.Constraint("DistanceX", 1, 1, 1, 2, 8.0))
sketch12.addConstraint(Sketcher.Constraint("DistanceX", 7, 1, 7, 2, 3.0))
sketch12.addConstraint(Sketcher.Constraint("DistanceY", 0, 1, 0, 2, 10.1))
sketch12.addConstraint(Sketcher.Constraint("DistanceY", 5, 2, 5, 1, 5.1))
sketch12.addConstraint(Sketcher.Constraint("DistanceX", -1, 1, 0, 2, 3.0))
sketch12.addConstraint(Sketcher.Constraint("DistanceX", -1, 1, 4, 2, 4.0))
sketch12.addConstraint(Sketcher.Constraint("DistanceY", 3, 2, 6, 2, 1.0))
sketch12.addConstraint(Sketcher.Constraint("DistanceY", -1, 1, 4, 3, 2.55))
pocket9 = body.newObject("PartDesign::Pocket", "Pocket008")
pocket9.Profile = sketch12
pocket9.Length = 0.45

doc.recompute()
